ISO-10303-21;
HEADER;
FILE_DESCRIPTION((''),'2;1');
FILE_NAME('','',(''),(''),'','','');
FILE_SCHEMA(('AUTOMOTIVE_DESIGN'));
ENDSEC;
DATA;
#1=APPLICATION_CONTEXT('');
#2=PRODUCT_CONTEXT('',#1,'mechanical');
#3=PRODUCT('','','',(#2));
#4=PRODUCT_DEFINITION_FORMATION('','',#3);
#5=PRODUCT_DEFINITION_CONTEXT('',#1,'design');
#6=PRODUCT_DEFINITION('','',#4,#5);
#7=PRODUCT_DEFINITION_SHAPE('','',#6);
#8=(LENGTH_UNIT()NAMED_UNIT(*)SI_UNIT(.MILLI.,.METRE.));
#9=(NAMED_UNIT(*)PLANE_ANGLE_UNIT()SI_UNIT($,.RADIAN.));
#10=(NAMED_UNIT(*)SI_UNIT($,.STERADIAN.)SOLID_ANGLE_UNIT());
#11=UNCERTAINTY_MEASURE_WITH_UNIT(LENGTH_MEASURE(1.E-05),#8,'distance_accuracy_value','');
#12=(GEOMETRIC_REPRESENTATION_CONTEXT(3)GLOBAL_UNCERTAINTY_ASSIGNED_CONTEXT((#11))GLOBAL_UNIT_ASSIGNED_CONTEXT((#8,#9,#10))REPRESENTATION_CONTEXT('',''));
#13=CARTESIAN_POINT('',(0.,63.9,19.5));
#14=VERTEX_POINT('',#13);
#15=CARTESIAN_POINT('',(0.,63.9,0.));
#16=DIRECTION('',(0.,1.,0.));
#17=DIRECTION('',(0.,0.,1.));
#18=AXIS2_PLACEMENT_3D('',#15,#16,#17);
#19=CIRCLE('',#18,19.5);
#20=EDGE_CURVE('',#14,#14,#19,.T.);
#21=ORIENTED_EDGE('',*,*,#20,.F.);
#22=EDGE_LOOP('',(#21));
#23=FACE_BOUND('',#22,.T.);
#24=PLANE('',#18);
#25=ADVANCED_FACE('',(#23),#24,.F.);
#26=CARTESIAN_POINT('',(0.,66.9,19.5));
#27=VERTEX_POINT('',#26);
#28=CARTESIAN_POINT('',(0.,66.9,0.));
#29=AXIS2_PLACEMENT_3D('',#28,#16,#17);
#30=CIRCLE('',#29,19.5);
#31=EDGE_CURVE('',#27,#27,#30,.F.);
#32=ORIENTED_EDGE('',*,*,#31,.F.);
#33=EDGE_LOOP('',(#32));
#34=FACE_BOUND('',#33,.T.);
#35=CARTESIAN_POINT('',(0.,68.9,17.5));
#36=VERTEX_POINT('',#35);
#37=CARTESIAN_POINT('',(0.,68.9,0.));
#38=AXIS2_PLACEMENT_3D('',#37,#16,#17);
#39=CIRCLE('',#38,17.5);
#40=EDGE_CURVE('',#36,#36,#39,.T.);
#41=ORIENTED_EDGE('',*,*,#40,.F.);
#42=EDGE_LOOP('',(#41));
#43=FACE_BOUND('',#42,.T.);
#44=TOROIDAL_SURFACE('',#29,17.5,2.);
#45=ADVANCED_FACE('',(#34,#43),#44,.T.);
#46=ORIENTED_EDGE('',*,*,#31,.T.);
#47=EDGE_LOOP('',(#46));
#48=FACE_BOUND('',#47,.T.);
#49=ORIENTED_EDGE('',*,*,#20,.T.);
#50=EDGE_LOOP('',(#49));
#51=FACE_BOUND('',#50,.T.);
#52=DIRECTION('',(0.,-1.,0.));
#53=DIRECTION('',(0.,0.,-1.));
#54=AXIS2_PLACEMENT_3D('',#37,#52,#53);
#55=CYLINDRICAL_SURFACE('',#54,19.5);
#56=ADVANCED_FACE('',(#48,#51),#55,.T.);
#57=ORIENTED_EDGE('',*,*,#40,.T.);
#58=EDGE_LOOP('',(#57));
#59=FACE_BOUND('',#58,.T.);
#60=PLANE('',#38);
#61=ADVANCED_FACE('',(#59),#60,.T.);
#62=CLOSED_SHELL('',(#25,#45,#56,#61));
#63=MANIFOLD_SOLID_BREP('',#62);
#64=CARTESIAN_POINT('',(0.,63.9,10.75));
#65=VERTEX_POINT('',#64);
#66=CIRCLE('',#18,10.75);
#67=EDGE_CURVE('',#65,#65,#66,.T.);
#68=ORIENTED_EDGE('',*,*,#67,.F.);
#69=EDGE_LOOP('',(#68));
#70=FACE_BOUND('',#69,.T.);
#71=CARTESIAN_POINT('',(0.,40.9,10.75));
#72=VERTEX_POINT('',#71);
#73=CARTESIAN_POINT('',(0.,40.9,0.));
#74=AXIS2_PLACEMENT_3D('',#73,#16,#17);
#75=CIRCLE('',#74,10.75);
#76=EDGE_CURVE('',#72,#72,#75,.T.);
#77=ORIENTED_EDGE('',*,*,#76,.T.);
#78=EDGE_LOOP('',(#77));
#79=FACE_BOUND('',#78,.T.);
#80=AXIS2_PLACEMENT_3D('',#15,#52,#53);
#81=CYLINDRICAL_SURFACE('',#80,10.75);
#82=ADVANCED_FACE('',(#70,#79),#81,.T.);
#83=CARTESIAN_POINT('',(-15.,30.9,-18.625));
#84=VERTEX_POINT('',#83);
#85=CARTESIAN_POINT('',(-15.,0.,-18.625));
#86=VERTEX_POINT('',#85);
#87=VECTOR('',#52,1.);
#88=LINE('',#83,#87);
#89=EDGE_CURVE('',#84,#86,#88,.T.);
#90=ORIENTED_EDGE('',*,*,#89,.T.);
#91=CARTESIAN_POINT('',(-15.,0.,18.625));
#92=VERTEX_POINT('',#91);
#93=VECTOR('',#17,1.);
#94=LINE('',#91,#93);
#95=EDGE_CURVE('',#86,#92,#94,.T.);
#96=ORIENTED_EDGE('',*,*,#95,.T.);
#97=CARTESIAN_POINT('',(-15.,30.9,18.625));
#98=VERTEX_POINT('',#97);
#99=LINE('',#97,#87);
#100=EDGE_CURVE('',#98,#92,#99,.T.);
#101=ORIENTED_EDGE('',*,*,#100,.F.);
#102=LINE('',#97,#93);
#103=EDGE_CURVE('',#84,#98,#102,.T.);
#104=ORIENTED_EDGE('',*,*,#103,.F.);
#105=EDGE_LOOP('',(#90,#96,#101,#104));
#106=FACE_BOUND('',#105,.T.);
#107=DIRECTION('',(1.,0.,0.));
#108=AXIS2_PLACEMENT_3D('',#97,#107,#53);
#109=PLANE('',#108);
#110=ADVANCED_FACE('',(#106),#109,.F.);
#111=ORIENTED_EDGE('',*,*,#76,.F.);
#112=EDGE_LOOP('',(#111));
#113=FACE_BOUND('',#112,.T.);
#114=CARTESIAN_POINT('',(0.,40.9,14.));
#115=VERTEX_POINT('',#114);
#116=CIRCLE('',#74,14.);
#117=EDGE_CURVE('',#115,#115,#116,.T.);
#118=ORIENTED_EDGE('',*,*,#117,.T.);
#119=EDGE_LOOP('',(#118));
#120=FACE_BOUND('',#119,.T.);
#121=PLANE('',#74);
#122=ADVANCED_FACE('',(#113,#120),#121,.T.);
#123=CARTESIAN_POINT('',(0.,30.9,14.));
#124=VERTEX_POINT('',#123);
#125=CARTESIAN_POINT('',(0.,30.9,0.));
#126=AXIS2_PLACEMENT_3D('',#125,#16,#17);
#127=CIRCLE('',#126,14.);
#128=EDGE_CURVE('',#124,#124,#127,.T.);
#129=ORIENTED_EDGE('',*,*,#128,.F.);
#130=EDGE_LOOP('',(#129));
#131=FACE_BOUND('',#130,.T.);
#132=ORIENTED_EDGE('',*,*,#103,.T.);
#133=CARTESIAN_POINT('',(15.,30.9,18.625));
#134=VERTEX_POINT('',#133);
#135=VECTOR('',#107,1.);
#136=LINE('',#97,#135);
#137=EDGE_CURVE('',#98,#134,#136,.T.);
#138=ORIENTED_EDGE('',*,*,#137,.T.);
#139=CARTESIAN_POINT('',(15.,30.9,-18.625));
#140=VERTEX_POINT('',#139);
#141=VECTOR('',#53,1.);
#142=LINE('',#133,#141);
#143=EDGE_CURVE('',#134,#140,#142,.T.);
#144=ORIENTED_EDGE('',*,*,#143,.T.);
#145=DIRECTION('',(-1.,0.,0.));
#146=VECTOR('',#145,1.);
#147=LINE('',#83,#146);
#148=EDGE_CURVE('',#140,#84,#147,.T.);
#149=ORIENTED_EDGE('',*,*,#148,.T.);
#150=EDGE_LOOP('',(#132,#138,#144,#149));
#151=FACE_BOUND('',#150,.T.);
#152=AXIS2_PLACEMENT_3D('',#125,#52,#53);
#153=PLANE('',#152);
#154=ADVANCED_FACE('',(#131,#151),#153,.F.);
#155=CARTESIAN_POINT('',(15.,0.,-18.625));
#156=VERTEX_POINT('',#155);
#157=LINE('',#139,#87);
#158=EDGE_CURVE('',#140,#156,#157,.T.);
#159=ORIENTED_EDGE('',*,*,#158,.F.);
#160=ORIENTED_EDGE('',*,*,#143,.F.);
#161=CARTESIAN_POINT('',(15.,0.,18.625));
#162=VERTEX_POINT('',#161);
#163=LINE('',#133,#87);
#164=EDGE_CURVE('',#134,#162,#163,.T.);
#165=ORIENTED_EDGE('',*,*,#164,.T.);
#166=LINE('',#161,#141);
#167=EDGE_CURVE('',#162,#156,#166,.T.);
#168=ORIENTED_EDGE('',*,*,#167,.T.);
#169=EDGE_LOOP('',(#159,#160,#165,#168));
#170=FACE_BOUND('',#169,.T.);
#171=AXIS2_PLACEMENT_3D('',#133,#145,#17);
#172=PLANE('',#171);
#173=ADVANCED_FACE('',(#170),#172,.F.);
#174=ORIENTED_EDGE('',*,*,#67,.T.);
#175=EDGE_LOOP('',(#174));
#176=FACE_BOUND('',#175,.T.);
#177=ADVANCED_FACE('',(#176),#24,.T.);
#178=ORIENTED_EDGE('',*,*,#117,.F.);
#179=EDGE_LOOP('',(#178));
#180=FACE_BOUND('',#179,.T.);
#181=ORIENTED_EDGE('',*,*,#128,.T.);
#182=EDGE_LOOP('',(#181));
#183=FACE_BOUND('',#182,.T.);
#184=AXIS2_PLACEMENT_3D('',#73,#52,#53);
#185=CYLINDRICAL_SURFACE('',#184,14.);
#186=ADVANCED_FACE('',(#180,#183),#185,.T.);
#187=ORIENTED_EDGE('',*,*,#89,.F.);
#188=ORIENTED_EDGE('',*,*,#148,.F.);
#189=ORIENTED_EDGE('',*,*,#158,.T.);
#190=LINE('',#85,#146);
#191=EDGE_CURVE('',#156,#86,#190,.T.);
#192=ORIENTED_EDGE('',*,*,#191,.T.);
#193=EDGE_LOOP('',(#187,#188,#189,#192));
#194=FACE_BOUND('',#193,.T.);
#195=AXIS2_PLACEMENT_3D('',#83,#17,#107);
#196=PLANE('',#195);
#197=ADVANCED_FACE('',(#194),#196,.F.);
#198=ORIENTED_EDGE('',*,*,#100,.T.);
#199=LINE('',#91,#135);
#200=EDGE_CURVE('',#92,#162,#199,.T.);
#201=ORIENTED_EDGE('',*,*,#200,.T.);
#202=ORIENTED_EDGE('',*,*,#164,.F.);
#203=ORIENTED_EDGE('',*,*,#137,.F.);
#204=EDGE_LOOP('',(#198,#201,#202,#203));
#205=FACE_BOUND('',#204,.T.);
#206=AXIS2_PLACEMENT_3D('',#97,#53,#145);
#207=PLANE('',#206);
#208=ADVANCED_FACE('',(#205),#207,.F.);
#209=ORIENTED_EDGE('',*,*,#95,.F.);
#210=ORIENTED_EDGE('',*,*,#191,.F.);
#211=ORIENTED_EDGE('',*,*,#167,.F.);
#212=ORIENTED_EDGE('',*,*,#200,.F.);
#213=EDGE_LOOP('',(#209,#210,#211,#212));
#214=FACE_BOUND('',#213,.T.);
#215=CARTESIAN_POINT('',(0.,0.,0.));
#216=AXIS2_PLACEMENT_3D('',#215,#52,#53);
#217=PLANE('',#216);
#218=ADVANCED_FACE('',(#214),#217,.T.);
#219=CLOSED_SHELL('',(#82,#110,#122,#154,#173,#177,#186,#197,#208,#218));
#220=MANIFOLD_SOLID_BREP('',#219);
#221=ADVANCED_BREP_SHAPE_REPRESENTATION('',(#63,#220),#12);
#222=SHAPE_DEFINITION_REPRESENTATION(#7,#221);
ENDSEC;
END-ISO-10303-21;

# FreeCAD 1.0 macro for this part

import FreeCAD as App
import Part
import Sketcher
from FreeCAD import Vector
Q = App.Units.Quantity


def edges_at(feature, points):
    """Names of the edges that pass closest to the given points."""
    edges = feature.Shape.Edges
    near = lambda p: min(range(len(edges)), key=lambda i: edges[i].distToShape(Part.Vertex(*p))[0])
    return sorted({f"Edge{near(p) + 1}" for p in points})

doc = App.newDocument("Part")
body = doc.addObject("PartDesign::Body", "Body")

# Sketch on XZ plane
sketch1 = body.newObject("Sketcher::SketchObject", "Sketch")
sketch1.AttachmentSupport = (doc.getObject("XZ_Plane"), [""])
sketch1.MapMode = "FlatFace"
sketch1.addGeometry([
    Part.LineSegment(Vector(-15, -19, 0), Vector(-15, 19, 0)),
    Part.LineSegment(Vector(-15, 19, 0), Vector(15, 19, 0)),
    Part.LineSegment(Vector(15, 19, 0), Vector(15, -19, 0)),
    Part.LineSegment(Vector(15, -19, 0), Vector(-15, -19, 0)),
], False)
sketch1.addConstraint([
    Sketcher.Constraint("Coincident", 0, 2, 1, 1),
    Sketcher.Constraint("Coincident", 1, 2, 2, 1),
    Sketcher.Constraint("Coincident", 2, 2, 3, 1),
    Sketcher.Constraint("Coincident", 3, 2, 0, 1),
    Sketcher.Constraint("Vertical", 0),
    Sketcher.Constraint("Horizontal", 1),
    Sketcher.Constraint("Vertical", 2),
    Sketcher.Constraint("Horizontal", 3),
    Sketcher.Constraint("Symmetric", 0, 2, 2, 2, -1, 1),
    Sketcher.Constraint("DistanceX", 1, 1, 1, 2, Q("30 mm")),
    Sketcher.Constraint("DistanceY", 0, 1, 0, 2, Q("37.25 mm")),
])
pad1 = body.newObject("PartDesign::Pad", "Pad")
pad1.Profile = sketch1
pad1.Length = 30.9
pad1.Reversed = True

# Sketch on XZ plane
sketch2 = body.newObject("Sketcher::SketchObject", "Sketch001")
sketch2.AttachmentSupport = (doc.getObject("XZ_Plane"), [""])
sketch2.MapMode = "FlatFace"
sketch2.AttachmentOffset = App.Placement(Vector(0, 0, -30.9), App.Rotation())
sketch2.addGeometry(Part.Circle(Vector(0, 0, 0), Vector(0, 0, 1), 14), False)
sketch2.addConstraint([
    Sketcher.Constraint("Coincident", 0, 3, -1, 1),
    Sketcher.Constraint("Diameter", 0, Q("28 mm")),
])
pad2 = body.newObject("PartDesign::Pad", "Pad001")
pad2.Profile = sketch2
pad2.Length = 10
pad2.Reversed = True

# Sketch on XZ plane
sketch3 = body.newObject("Sketcher::SketchObject", "Sketch002")
sketch3.AttachmentSupport = (doc.getObject("XZ_Plane"), [""])
sketch3.MapMode = "FlatFace"
sketch3.AttachmentOffset = App.Placement(Vector(0, 0, -40.9), App.Rotation())
sketch3.addGeometry(Part.Circle(Vector(0, 0, 0), Vector(0, 0, 1), 11), False)
sketch3.addConstraint([
    Sketcher.Constraint("Coincident", 0, 3, -1, 1),
    Sketcher.Constraint("Diameter", 0, Q("21.5 mm")),
])
pad3 = body.newObject("PartDesign::Pad", "Pad002")
pad3.Profile = sketch3
pad3.Length = 23
pad3.Reversed = True
body2 = doc.addObject("PartDesign::Body", "Body001")

# Sketch on XZ plane
sketch4 = body2.newObject("Sketcher::SketchObject", "Sketch003")
sketch4.AttachmentSupport = (doc.getObject("XZ_Plane001"), [""])
sketch4.MapMode = "FlatFace"
sketch4.AttachmentOffset = App.Placement(Vector(0, 0, -63.9), App.Rotation())
sketch4.addGeometry(Part.Circle(Vector(0, 0, 0), Vector(0, 0, 1), 20), False)
sketch4.addConstraint([
    Sketcher.Constraint("Coincident", 0, 3, -1, 1),
    Sketcher.Constraint("Diameter", 0, Q("39 mm")),
])
pad4 = body2.newObject("PartDesign::Pad", "Pad003")
pad4.Profile = sketch4
pad4.Length = 5
pad4.Reversed = True
doc.recompute()

fillet = body2.newObject("PartDesign::Fillet", "Fillet")
fillet.Base = (pad4, edges_at(pad4, [(-19.5, 68.9, 0)]))
fillet.Radius = 2

doc.recompute()
